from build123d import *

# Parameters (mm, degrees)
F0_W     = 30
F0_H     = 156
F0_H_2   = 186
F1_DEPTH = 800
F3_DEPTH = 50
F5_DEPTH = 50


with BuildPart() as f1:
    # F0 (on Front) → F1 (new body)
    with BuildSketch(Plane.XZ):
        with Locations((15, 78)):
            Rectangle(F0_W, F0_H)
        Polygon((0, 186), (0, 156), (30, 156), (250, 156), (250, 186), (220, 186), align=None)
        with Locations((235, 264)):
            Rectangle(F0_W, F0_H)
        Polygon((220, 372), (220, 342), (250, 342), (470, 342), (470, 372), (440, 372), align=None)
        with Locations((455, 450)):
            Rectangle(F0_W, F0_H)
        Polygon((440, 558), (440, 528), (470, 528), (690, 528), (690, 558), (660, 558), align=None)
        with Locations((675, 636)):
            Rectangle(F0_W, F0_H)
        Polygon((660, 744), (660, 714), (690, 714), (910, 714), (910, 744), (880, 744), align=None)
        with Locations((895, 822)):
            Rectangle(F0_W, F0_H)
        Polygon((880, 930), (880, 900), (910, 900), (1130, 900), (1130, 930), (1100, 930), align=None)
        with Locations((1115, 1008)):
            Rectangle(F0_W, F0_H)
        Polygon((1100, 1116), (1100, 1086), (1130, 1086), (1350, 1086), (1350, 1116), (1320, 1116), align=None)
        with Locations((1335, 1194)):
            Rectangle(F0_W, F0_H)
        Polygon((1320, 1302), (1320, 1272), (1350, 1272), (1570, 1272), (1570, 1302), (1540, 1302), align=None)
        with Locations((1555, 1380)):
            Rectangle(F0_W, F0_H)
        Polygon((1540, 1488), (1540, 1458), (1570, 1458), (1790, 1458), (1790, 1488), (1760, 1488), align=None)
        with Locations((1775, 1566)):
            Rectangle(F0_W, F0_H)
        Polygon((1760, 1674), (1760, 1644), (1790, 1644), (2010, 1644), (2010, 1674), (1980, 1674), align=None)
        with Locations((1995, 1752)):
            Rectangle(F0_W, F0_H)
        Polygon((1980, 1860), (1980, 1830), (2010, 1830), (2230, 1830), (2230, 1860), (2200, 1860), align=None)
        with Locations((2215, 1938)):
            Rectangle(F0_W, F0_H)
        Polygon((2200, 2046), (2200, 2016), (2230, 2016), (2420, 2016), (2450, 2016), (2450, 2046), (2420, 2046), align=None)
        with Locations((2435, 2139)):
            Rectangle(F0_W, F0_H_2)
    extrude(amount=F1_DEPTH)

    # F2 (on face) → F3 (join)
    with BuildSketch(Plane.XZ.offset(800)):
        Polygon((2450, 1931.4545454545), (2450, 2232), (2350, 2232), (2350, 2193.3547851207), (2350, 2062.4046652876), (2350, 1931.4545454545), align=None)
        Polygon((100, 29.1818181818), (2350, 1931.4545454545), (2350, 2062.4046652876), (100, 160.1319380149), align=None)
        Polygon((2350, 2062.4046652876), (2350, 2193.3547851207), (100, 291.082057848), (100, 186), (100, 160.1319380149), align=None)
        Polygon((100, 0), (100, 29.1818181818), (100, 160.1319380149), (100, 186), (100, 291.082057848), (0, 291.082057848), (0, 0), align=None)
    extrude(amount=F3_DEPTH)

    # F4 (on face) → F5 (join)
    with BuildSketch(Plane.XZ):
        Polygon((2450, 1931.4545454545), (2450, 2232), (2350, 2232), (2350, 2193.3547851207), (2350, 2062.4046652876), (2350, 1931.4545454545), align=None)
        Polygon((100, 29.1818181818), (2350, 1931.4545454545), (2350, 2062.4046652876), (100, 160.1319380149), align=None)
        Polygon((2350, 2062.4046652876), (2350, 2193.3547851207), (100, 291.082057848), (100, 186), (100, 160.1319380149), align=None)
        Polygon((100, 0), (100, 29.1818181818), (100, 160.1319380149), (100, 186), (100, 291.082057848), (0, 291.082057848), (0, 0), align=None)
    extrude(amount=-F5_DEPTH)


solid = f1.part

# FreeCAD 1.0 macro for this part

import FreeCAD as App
import Part
import Sketcher
Q = App.Units.Quantity

doc = App.newDocument("Part")
body = doc.addObject("PartDesign::Body", "Body")

# Sketch on XZ plane
sketch1 = body.newObject("Sketcher::SketchObject", "Sketch")
sketch1.AttachmentSupport = (doc.getObject("XZ_Plane"), [""])
sketch1.MapMode = "FlatFace"
sketch1.addGeometry(Part.LineSegment(App.Vector(0, 0, 0), App.Vector(30, 0, 0)), False)
sketch1.addGeometry(Part.LineSegment(App.Vector(30, 0, 0), App.Vector(30, 156, 0)), False)
sketch1.addGeometry(Part.LineSegment(App.Vector(30, 156, 0), App.Vector(250, 156, 0)), False)
sketch1.addGeometry(Part.LineSegment(App.Vector(250, 156, 0), App.Vector(250, 342, 0)), False)
sketch1.addGeometry(Part.LineSegment(App.Vector(250, 342, 0), App.Vector(470, 342, 0)), False)
sketch1.addGeometry(Part.LineSegment(App.Vector(470, 342, 0), App.Vector(470, 528, 0)), False)
sketch1.addGeometry(Part.LineSegment(App.Vector(470, 528, 0), App.Vector(690, 528, 0)), False)
sketch1.addGeometry(Part.LineSegment(App.Vector(690, 528, 0), App.Vector(690, 714, 0)), False)
sketch1.addGeometry(Part.LineSegment(App.Vector(690, 714, 0), App.Vector(910, 714, 0)), False)
sketch1.addGeometry(Part.LineSegment(App.Vector(910, 714, 0), App.Vector(910, 900, 0)), False)
sketch1.addGeometry(Part.LineSegment(App.Vector(910, 900, 0), App.Vector(1130, 900, 0)), False)
sketch1.addGeometry(Part.LineSegment(App.Vector(1130, 900, 0), App.Vector(1130, 1086, 0)), False)
sketch1.addGeometry(Part.LineSegment(App.Vector(1130, 1086, 0), App.Vector(1350, 1086, 0)), False)
sketch1.addGeometry(Part.LineSegment(App.Vector(1350, 1086, 0), App.Vector(1350, 1272, 0)), False)
sketch1.addGeometry(Part.LineSegment(App.Vector(1350, 1272, 0), App.Vector(1570, 1272, 0)), False)
sketch1.addGeometry(Part.LineSegment(App.Vector(1570, 1272, 0), App.Vector(1570, 1458, 0)), False)
sketch1.addGeometry(Part.LineSegment(App.Vector(1570, 1458, 0), App.Vector(1790, 1458, 0)), False)
sketch1.addGeometry(Part.LineSegment(App.Vector(1790, 1458, 0), App.Vector(1790, 1644, 0)), False)
sketch1.addGeometry(Part.LineSegment(App.Vector(1790, 1644, 0), App.Vector(2010, 1644, 0)), False)
sketch1.addGeometry(Part.LineSegment(App.Vector(2010, 1644, 0), App.Vector(2010, 1830, 0)), False)
sketch1.addGeometry(Part.LineSegment(App.Vector(2010, 1830, 0), App.Vector(2230, 1830, 0)), False)
sketch1.addGeometry(Part.LineSegment(App.Vector(2230, 1830, 0), App.Vector(2230, 2016, 0)), False)
sketch1.addGeometry(Part.LineSegment(App.Vector(2230, 2016, 0), App.Vector(2450, 2016, 0)), False)
sketch1.addGeometry(Part.LineSegment(App.Vector(2450, 2016, 0), App.Vector(2450, 2232, 0)), False)
sketch1.addGeometry(Part.LineSegment(App.Vector(2450, 2232, 0), App.Vector(2420, 2232, 0)), False)
sketch1.addGeometry(Part.LineSegment(App.Vector(2420, 2232, 0), App.Vector(2420, 2046, 0)), False)
sketch1.addGeometry(Part.LineSegment(App.Vector(2420, 2046, 0), App.Vector(2200, 2046, 0)), False)
sketch1.addGeometry(Part.LineSegment(App.Vector(2200, 2046, 0), App.Vector(2200, 1860, 0)), False)
sketch1.addGeometry(Part.LineSegment(App.Vector(2200, 1860, 0), App.Vector(1980, 1860, 0)), False)
sketch1.addGeometry(Part.LineSegment(App.Vector(1980, 1860, 0), App.Vector(1980, 1674, 0)), False)
sketch1.addGeometry(Part.LineSegment(App.Vector(1980, 1674, 0), App.Vector(1760, 1674, 0)), False)
sketch1.addGeometry(Part.LineSegment(App.Vector(1760, 1674, 0), App.Vector(1760, 1488, 0)), False)
sketch1.addGeometry(Part.LineSegment(App.Vector(1760, 1488, 0), App.Vector(1540, 1488, 0)), False)
sketch1.addGeometry(Part.LineSegment(App.Vector(1540, 1488, 0), App.Vector(1540, 1302, 0)), False)
sketch1.addGeometry(Part.LineSegment(App.Vector(1540, 1302, 0), App.Vector(1320, 1302, 0)), False)
sketch1.addGeometry(Part.LineSegment(App.Vector(1320, 1302, 0), App.Vector(1320, 1116, 0)), False)
sketch1.addGeometry(Part.LineSegment(App.Vector(1320, 1116, 0), App.Vector(1100, 1116, 0)), False)
sketch1.addGeometry(Part.LineSegment(App.Vector(1100, 1116, 0), App.Vector(1100, 930, 0)), False)
sketch1.addGeometry(Part.LineSegment(App.Vector(1100, 930, 0), App.Vector(880, 930, 0)), False)
sketch1.addGeometry(Part.LineSegment(App.Vector(880, 930, 0), App.Vector(880, 744, 0)), False)
sketch1.addGeometry(Part.LineSegment(App.Vector(880, 744, 0), App.Vector(660, 744, 0)), False)
sketch1.addGeometry(Part.LineSegment(App.Vector(660, 744, 0), App.Vector(660, 558, 0)), False)
sketch1.addGeometry(Part.LineSegment(App.Vector(660, 558, 0), App.Vector(440, 558, 0)), False)
sketch1.addGeometry(Part.LineSegment(App.Vector(440, 558, 0), App.Vector(440, 372, 0)), False)
sketch1.addGeometry(Part.LineSegment(App.Vector(440, 372, 0), App.Vector(220, 372, 0)), False)
sketch1.addGeometry(Part.LineSegment(App.Vector(220, 372, 0), App.Vector(220, 186, 0)), False)
sketch1.addGeometry(Part.LineSegment(App.Vector(220, 186, 0), App.Vector(0, 186, 0)), False)
sketch1.addGeometry(Part.LineSegment(App.Vector(0, 186, 0), App.Vector(0, 0, 0)), False)
sketch1.addConstraint(Sketcher.Constraint("Coincident", 0, 2, 1, 1))
sketch1.addConstraint(Sketcher.Constraint("Coincident", 1, 2, 2, 1))
sketch1.addConstraint(Sketcher.Constraint("Coincident", 2, 2, 3, 1))
sketch1.addConstraint(Sketcher.Constraint("Coincident", 3, 2, 4, 1))
sketch1.addConstraint(Sketcher.Constraint("Coincident", 4, 2, 5, 1))
sketch1.addConstraint(Sketcher.Constraint("Coincident", 5, 2, 6, 1))
sketch1.addConstraint(Sketcher.Constraint("Coincident", 6, 2, 7, 1))
sketch1.addConstraint(Sketcher.Constraint("Coincident", 7, 2, 8, 1))
sketch1.addConstraint(Sketcher.Constraint("Coincident", 8, 2, 9, 1))
sketch1.addConstraint(Sketcher.Constraint("Coincident", 9, 2, 10, 1))
sketch1.addConstraint(Sketcher.Constraint("Coincident", 10, 2, 11, 1))
sketch1.addConstraint(Sketcher.Constraint("Coincident", 11, 2, 12, 1))
sketch1.addConstraint(Sketcher.Constraint("Coincident", 12, 2, 13, 1))
sketch1.addConstraint(Sketcher.Constraint("Coincident", 13, 2, 14, 1))
sketch1.addConstraint(Sketcher.Constraint("Coincident", 14, 2, 15, 1))
sketch1.addConstraint(Sketcher.Constraint("Coincident", 15, 2, 16, 1))
sketch1.addConstraint(Sketcher.Constraint("Coincident", 16, 2, 17, 1))
sketch1.addConstraint(Sketcher.Constraint("Coincident", 17, 2, 18, 1))
sketch1.addConstraint(Sketcher.Constraint("Coincident", 18, 2, 19, 1))
sketch1.addConstraint(Sketcher.Constraint("Coincident", 19, 2, 20, 1))
sketch1.addConstraint(Sketcher.Constraint("Coincident", 20, 2, 21, 1))
sketch1.addConstraint(Sketcher.Constraint("Coincident", 21, 2, 22, 1))
sketch1.addConstraint(Sketcher.Constraint("Coincident", 22, 2, 23, 1))
sketch1.addConstraint(Sketcher.Constraint("Coincident", 23, 2, 24, 1))
sketch1.addConstraint(Sketcher.Constraint("Coincident", 24, 2, 25, 1))
sketch1.addConstraint(Sketcher.Constraint("Coincident", 25, 2, 26, 1))
sketch1.addConstraint(Sketcher.Constraint("Coincident", 26, 2, 27, 1))
sketch1.addConstraint(Sketcher.Constraint("Coincident", 27, 2, 28, 1))
sketch1.addConstraint(Sketcher.Constraint("Coincident", 28, 2, 29, 1))
sketch1.addConstraint(Sketcher.Constraint("Coincident", 29, 2, 30, 1))
sketch1.addConstraint(Sketcher.Constraint("Coincident", 30, 2, 31, 1))
sketch1.addConstraint(Sketcher.Constraint("Coincident", 31, 2, 32, 1))
sketch1.addConstraint(Sketcher.Constraint("Coincident", 32, 2, 33, 1))
sketch1.addConstraint(Sketcher.Constraint("Coincident", 33, 2, 34, 1))
sketch1.addConstraint(Sketcher.Constraint("Coincident", 34, 2, 35, 1))
sketch1.addConstraint(Sketcher.Constraint("Coincident", 35, 2, 36, 1))
sketch1.addConstraint(Sketcher.Constraint("Coincident", 36, 2, 37, 1))
sketch1.addConstraint(Sketcher.Constraint("Coincident", 37, 2, 38, 1))
sketch1.addConstraint(Sketcher.Constraint("Coincident", 38, 2, 39, 1))
sketch1.addConstraint(Sketcher.Constraint("Coincident", 39, 2, 40, 1))
sketch1.addConstraint(Sketcher.Constraint("Coincident", 40, 2, 41, 1))
sketch1.addConstraint(Sketcher.Constraint("Coincident", 41, 2, 42, 1))
sketch1.addConstraint(Sketcher.Constraint("Coincident", 42, 2, 43, 1))
sketch1.addConstraint(Sketcher.Constraint("Coincident", 43, 2, 44, 1))
sketch1.addConstraint(Sketcher.Constraint("Coincident", 44, 2, 45, 1))
sketch1.addConstraint(Sketcher.Constraint("Coincident", 45, 2, 46, 1))
sketch1.addConstraint(Sketcher.Constraint("Coincident", 46, 2, 47, 1))
sketch1.addConstraint(Sketcher.Constraint("Coincident", 47, 2, 0, 1))
sketch1.addConstraint(Sketcher.Constraint("Horizontal", 0))
sketch1.addConstraint(Sketcher.Constraint("Vertical", 1))
sketch1.addConstraint(Sketcher.Constraint("Horizontal", 2))
sketch1.addConstraint(Sketcher.Constraint("Vertical", 3))
sketch1.addConstraint(Sketcher.Constraint("Horizontal", 4))
sketch1.addConstraint(Sketcher.Constraint("Vertical", 5))
sketch1.addConstraint(Sketcher.Constraint("Horizontal", 6))
sketch1.addConstraint(Sketcher.Constraint("Vertical", 7))
sketch1.addConstraint(Sketcher.Constraint("Horizontal", 8))
sketch1.addConstraint(Sketcher.Constraint("Vertical", 9))
sketch1.addConstraint(Sketcher.Constraint("Horizontal", 10))
sketch1.addConstraint(Sketcher.Constraint("Vertical", 11))
sketch1.addConstraint(Sketcher.Constraint("Horizontal", 12))
sketch1.addConstraint(Sketcher.Constraint("Vertical", 13))
sketch1.addConstraint(Sketcher.Constraint("Horizontal", 14))
sketch1.addConstraint(Sketcher.Constraint("Vertical", 15))
sketch1.addConstraint(Sketcher.Constraint("Horizontal", 16))
sketch1.addConstraint(Sketcher.Constraint("Vertical", 17))
sketch1.addConstraint(Sketcher.Constraint("Horizontal", 18))
sketch1.addConstraint(Sketcher.Constraint("Vertical", 19))
sketch1.addConstraint(Sketcher.Constraint("Horizontal", 20))
sketch1.addConstraint(Sketcher.Constraint("Vertical", 21))
sketch1.addConstraint(Sketcher.Constraint("Horizontal", 22))
sketch1.addConstraint(Sketcher.Constraint("Vertical", 23))
sketch1.addConstraint(Sketcher.Constraint("Horizontal", 24))
sketch1.addConstraint(Sketcher.Constraint("Vertical", 25))
sketch1.addConstraint(Sketcher.Constraint("Horizontal", 26))
sketch1.addConstraint(Sketcher.Constraint("Vertical", 27))
sketch1.addConstraint(Sketcher.Constraint("Horizontal", 28))
sketch1.addConstraint(Sketcher.Constraint("Vertical", 29))
sketch1.addConstraint(Sketcher.Constraint("Horizontal", 30))
sketch1.addConstraint(Sketcher.Constraint("Vertical", 31))
sketch1.addConstraint(Sketcher.Constraint("Horizontal", 32))
sketch1.addConstraint(Sketcher.Constraint("Vertical", 33))
sketch1.addConstraint(Sketcher.Constraint("Horizontal", 34))
sketch1.addConstraint(Sketcher.Constraint("Vertical", 35))
sketch1.addConstraint(Sketcher.Constraint("Horizontal", 36))
sketch1.addConstraint(Sketcher.Constraint("Vertical", 37))
sketch1.addConstraint(Sketcher.Constraint("Horizontal", 38))
sketch1.addConstraint(Sketcher.Constraint("Vertical", 39))
sketch1.addConstraint(Sketcher.Constraint("Horizontal", 40))
sketch1.addConstraint(Sketcher.Constraint("Vertical", 41))
sketch1.addConstraint(Sketcher.Constraint("Horizontal", 42))
sketch1.addConstraint(Sketcher.Constraint("Vertical", 43))
sketch1.addConstraint(Sketcher.Constraint("Horizontal", 44))
sketch1.addConstraint(Sketcher.Constraint("Vertical", 45))
sketch1.addConstraint(Sketcher.Constraint("Horizontal", 46))
sketch1.addConstraint(Sketcher.Constraint("Vertical", 47))
sketch1.addConstraint(Sketcher.Constraint("Coincident", 47, 2, -1, 1))
sketch1.addConstraint(Sketcher.Constraint("Equal", 2, 4))
sketch1.addConstraint(Sketcher.Constraint("Equal", 4, 6))
sketch1.addConstraint(Sketcher.Constraint("Equal", 6, 8))
sketch1.addConstraint(Sketcher.Constraint("Equal", 8, 10))
sketch1.addConstraint(Sketcher.Constraint("Equal", 10, 12))
sketch1.addConstraint(Sketcher.Constraint("Equal", 12, 14))
sketch1.addConstraint(Sketcher.Constraint("Equal", 14, 16))
sketch1.addConstraint(Sketcher.Constraint("Equal", 16, 18))
sketch1.addConstraint(Sketcher.Constraint("Equal", 18, 20))
sketch1.addConstraint(Sketcher.Constraint("Equal", 20, 22))
sketch1.addConstraint(Sketcher.Constraint("Equal", 0, 24))
sketch1.addConstraint(Sketcher.Constraint("Equal", 22, 26))
sketch1.addConstraint(Sketcher.Constraint("Equal", 26, 28))
sketch1.addConstraint(Sketcher.Constraint("Equal", 28, 30))
sketch1.addConstraint(Sketcher.Constraint("Equal", 30, 32))
sketch1.addConstraint(Sketcher.Constraint("Equal", 32, 34))
sketch1.addConstraint(Sketcher.Constraint("Equal", 34, 36))
sketch1.addConstraint(Sketcher.Constraint("Equal", 36, 38))
sketch1.addConstraint(Sketcher.Constraint("Equal", 38, 40))
sketch1.addConstraint(Sketcher.Constraint("Equal", 40, 42))
sketch1.addConstraint(Sketcher.Constraint("Equal", 42, 44))
sketch1.addConstraint(Sketcher.Constraint("Equal", 3, 5))
sketch1.addConstraint(Sketcher.Constraint("Equal", 5, 7))
sketch1.addConstraint(Sketcher.Constraint("Equal", 7, 9))
sketch1.addConstraint(Sketcher.Constraint("Equal", 9, 11))
sketch1.addConstraint(Sketcher.Constraint("Equal", 11, 13))
sketch1.addConstraint(Sketcher.Constraint("Equal", 13, 15))
sketch1.addConstraint(Sketcher.Constraint("Equal", 15, 17))
sketch1.addConstraint(Sketcher.Constraint("Equal", 17, 19))
sketch1.addConstraint(Sketcher.Constraint("Equal", 19, 21))
sketch1.addConstraint(Sketcher.Constraint("Equal", 21, 25))
sketch1.addConstraint(Sketcher.Constraint("Equal", 25, 27))
sketch1.addConstraint(Sketcher.Constraint("Equal", 27, 29))
sketch1.addConstraint(Sketcher.Constraint("Equal", 29, 31))
sketch1.addConstraint(Sketcher.Constraint("Equal", 31, 33))
sketch1.addConstraint(Sketcher.Constraint("Equal", 33, 35))
sketch1.addConstraint(Sketcher.Constraint("Equal", 35, 37))
sketch1.addConstraint(Sketcher.Constraint("Equal", 37, 39))
sketch1.addConstraint(Sketcher.Constraint("Equal", 39, 41))
sketch1.addConstraint(Sketcher.Constraint("Equal", 41, 43))
sketch1.addConstraint(Sketcher.Constraint("Equal", 43, 45))
sketch1.addConstraint(Sketcher.Constraint("Equal", 45, 47))
sketch1.addConstraint(Sketcher.Constraint("DistanceX", 0, 1, 0, 2, Q("30 mm")))
sketch1.addConstraint(Sketcher.Constraint("DistanceX", 2, 1, 2, 2, Q("220 mm")))
sketch1.addConstraint(Sketcher.Constraint("DistanceY", 1, 1, 1, 2, Q("156 mm")))
sketch1.addConstraint(Sketcher.Constraint("DistanceY", 3, 1, 3, 2, Q("186 mm")))
pad1 = body.newObject("PartDesign::Pad", "Pad")
pad1.Profile = sketch1
pad1.Length = 800

# Sketch on XZ plane
sketch2 = body.newObject("Sketcher::SketchObject", "Sketch001")
sketch2.AttachmentSupport = (doc.getObject("XZ_Plane"), [""])
sketch2.MapMode = "FlatFace"
sketch2.AttachmentOffset = App.Placement(App.Vector(0, 0, 800), App.Rotation())
sketch2.addGeometry(Part.LineSegment(App.Vector(2450, 1931.454545, 0), App.Vector(2450, 2232, 0)), False)
sketch2.addGeometry(Part.LineSegment(App.Vector(2450, 2232, 0), App.Vector(2350, 2232, 0)), False)
sketch2.addGeometry(Part.LineSegment(App.Vector(2350, 2232, 0), App.Vector(2350, 2193.354785, 0)), False)
sketch2.addGeometry(Part.LineSegment(App.Vector(2350, 2193.354785, 0), App.Vector(100, 291.082058, 0)), False)
sketch2.addGeometry(Part.LineSegment(App.Vector(100, 291.082058, 0), App.Vector(0, 291.082058, 0)), False)
sketch2.addGeometry(Part.LineSegment(App.Vector(0, 291.082058, 0), App.Vector(0, 0, 0)), False)
sketch2.addGeometry(Part.LineSegment(App.Vector(0, 0, 0), App.Vector(100, 0, 0)), False)
sketch2.addGeometry(Part.LineSegment(App.Vector(100, 0, 0), App.Vector(100, 29.181818, 0)), False)
sketch2.addGeometry(Part.LineSegment(App.Vector(100, 29.181818, 0), App.Vector(2350, 1931.454545, 0)), False)
sketch2.addGeometry(Part.LineSegment(App.Vector(2350, 1931.454545, 0), App.Vector(2450, 1931.454545, 0)), False)
sketch2.addConstraint(Sketcher.Constraint("Coincident", 0, 2, 1, 1))
sketch2.addConstraint(Sketcher.Constraint("Coincident", 1, 2, 2, 1))
sketch2.addConstraint(Sketcher.Constraint("Coincident", 2, 2, 3, 1))
sketch2.addConstraint(Sketcher.Constraint("Coincident", 3, 2, 4, 1))
sketch2.addConstraint(Sketcher.Constraint("Coincident", 4, 2, 5, 1))
sketch2.addConstraint(Sketcher.Constraint("Coincident", 5, 2, 6, 1))
sketch2.addConstraint(Sketcher.Constraint("Coincident", 6, 2, 7, 1))
sketch2.addConstraint(Sketcher.Constraint("Coincident", 7, 2, 8, 1))
sketch2.addConstraint(Sketcher.Constraint("Coincident", 8, 2, 9, 1))
sketch2.addConstraint(Sketcher.Constraint("Coincident", 9, 2, 0, 1))
sketch2.addConstraint(Sketcher.Constraint("Vertical", 0))
sketch2.addConstraint(Sketcher.Constraint("Horizontal", 1))
sketch2.addConstraint(Sketcher.Constraint("Vertical", 2))
sketch2.addConstraint(Sketcher.Constraint("Horizontal", 4))
sketch2.addConstraint(Sketcher.Constraint("Vertical", 5))
sketch2.addConstraint(Sketcher.Constraint("Horizontal", 6))
sketch2.addConstraint(Sketcher.Constraint("Vertical", 7))
sketch2.addConstraint(Sketcher.Constraint("Horizontal", 9))
sketch2.addConstraint(Sketcher.Constraint("Coincident", 5, 2, -1, 1))
sketch2.addConstraint(Sketcher.Constraint("Parallel", 3, 8))
sketch2.addConstraint(Sketcher.Constraint("Vertical", 3, 2, 6, 2))
sketch2.addConstraint(Sketcher.Constraint("Vertical", 2, 2, 8, 2))
sketch2.addConstraint(Sketcher.Constraint("Equal", 1, 4))
sketch2.addConstraint(Sketcher.Constraint("DistanceX", 1, 2, 1, 1, Q("100 mm")))
sketch2.addConstraint(Sketcher.Constraint("DistanceX", -1, 1, 0, 2, Q("2450 mm")))
sketch2.addConstraint(Sketcher.Constraint("DistanceY", -1, 1, 0, 2, Q("2232 mm")))
sketch2.addConstraint(Sketcher.Constraint("DistanceY", 7, 1, 7, 2, Q("29.181818 mm")))
sketch2.addConstraint(Sketcher.Constraint("DistanceY", 0, 1, 0, 2, Q("300.545455 mm")))
sketch2.addConstraint(Sketcher.Constraint("DistanceY", 2, 2, 2, 1, Q("38.645215 mm")))
pad2 = body.newObject("PartDesign::Pad", "Pad001")
pad2.Profile = sketch2
pad2.Length = 50

# Sketch on XZ plane
sketch3 = body.newObject("Sketcher::SketchObject", "Sketch002")
sketch3.AttachmentSupport = (doc.getObject("XZ_Plane"), [""])
sketch3.MapMode = "FlatFace"
sketch3.addGeometry(Part.LineSegment(App.Vector(2450, 1931.454545, 0), App.Vector(2450, 2232, 0)), False)
sketch3.addGeometry(Part.LineSegment(App.Vector(2450, 2232, 0), App.Vector(2350, 2232, 0)), False)
sketch3.addGeometry(Part.LineSegment(App.Vector(2350, 2232, 0), App.Vector(2350, 2193.354785, 0)), False)
sketch3.addGeometry(Part.LineSegment(App.Vector(2350, 2193.354785, 0), App.Vector(100, 291.082058, 0)), False)
sketch3.addGeometry(Part.LineSegment(App.Vector(100, 291.082058, 0), App.Vector(0, 291.082058, 0)), False)
sketch3.addGeometry(Part.LineSegment(App.Vector(0, 291.082058, 0), App.Vector(0, 0, 0)), False)
sketch3.addGeometry(Part.LineSegment(App.Vector(0, 0, 0), App.Vector(100, 0, 0)), False)
sketch3.addGeometry(Part.LineSegment(App.Vector(100, 0, 0), App.Vector(100, 29.181818, 0)), False)
sketch3.addGeometry(Part.LineSegment(App.Vector(100, 29.181818, 0), App.Vector(2350, 1931.454545, 0)), False)
sketch3.addGeometry(Part.LineSegment(App.Vector(2350, 1931.454545, 0), App.Vector(2450, 1931.454545, 0)), False)
sketch3.addConstraint(Sketcher.Constraint("Coincident", 0, 2, 1, 1))
sketch3.addConstraint(Sketcher.Constraint("Coincident", 1, 2, 2, 1))
sketch3.addConstraint(Sketcher.Constraint("Coincident", 2, 2, 3, 1))
sketch3.addConstraint(Sketcher.Constraint("Coincident", 3, 2, 4, 1))
sketch3.addConstraint(Sketcher.Constraint("Coincident", 4, 2, 5, 1))
sketch3.addConstraint(Sketcher.Constraint("Coincident", 5, 2, 6, 1))
sketch3.addConstraint(Sketcher.Constraint("Coincident", 6, 2, 7, 1))
sketch3.addConstraint(Sketcher.Constraint("Coincident", 7, 2, 8, 1))
sketch3.addConstraint(Sketcher.Constraint("Coincident", 8, 2, 9, 1))
sketch3.addConstraint(Sketcher.Constraint("Coincident", 9, 2, 0, 1))
sketch3.addConstraint(Sketcher.Constraint("Vertical", 0))
sketch3.addConstraint(Sketcher.Constraint("Horizontal", 1))
sketch3.addConstraint(Sketcher.Constraint("Vertical", 2))
sketch3.addConstraint(Sketcher.Constraint("Horizontal", 4))
sketch3.addConstraint(Sketcher.Constraint("Vertical", 5))
sketch3.addConstraint(Sketcher.Constraint("Horizontal", 6))
sketch3.addConstraint(Sketcher.Constraint("Vertical", 7))
sketch3.addConstraint(Sketcher.Constraint("Horizontal", 9))
sketch3.addConstraint(Sketcher.Constraint("Coincident", 5, 2, -1, 1))
sketch3.addConstraint(Sketcher.Constraint("Parallel", 3, 8))
sketch3.addConstraint(Sketcher.Constraint("Vertical", 3, 2, 6, 2))
sketch3.addConstraint(Sketcher.Constraint("Vertical", 2, 2, 8, 2))
sketch3.addConstraint(Sketcher.Constraint("Equal", 1, 4))
sketch3.addConstraint(Sketcher.Constraint("DistanceX", 1, 2, 1, 1, Q("100 mm")))
sketch3.addConstraint(Sketcher.Constraint("DistanceX", -1, 1, 0, 2, Q("2450 mm")))
sketch3.addConstraint(Sketcher.Constraint("DistanceY", -1, 1, 0, 2, Q("2232 mm")))
sketch3.addConstraint(Sketcher.Constraint("DistanceY", 7, 1, 7, 2, Q("29.181818 mm")))
sketch3.addConstraint(Sketcher.Constraint("DistanceY", 0, 1, 0, 2, Q("300.545455 mm")))
sketch3.addConstraint(Sketcher.Constraint("DistanceY", 2, 2, 2, 1, Q("38.645215 mm")))
pad3 = body.newObject("PartDesign::Pad", "Pad002")
pad3.Profile = sketch3
pad3.Length = 50
pad3.Reversed = True

doc.recompute()
